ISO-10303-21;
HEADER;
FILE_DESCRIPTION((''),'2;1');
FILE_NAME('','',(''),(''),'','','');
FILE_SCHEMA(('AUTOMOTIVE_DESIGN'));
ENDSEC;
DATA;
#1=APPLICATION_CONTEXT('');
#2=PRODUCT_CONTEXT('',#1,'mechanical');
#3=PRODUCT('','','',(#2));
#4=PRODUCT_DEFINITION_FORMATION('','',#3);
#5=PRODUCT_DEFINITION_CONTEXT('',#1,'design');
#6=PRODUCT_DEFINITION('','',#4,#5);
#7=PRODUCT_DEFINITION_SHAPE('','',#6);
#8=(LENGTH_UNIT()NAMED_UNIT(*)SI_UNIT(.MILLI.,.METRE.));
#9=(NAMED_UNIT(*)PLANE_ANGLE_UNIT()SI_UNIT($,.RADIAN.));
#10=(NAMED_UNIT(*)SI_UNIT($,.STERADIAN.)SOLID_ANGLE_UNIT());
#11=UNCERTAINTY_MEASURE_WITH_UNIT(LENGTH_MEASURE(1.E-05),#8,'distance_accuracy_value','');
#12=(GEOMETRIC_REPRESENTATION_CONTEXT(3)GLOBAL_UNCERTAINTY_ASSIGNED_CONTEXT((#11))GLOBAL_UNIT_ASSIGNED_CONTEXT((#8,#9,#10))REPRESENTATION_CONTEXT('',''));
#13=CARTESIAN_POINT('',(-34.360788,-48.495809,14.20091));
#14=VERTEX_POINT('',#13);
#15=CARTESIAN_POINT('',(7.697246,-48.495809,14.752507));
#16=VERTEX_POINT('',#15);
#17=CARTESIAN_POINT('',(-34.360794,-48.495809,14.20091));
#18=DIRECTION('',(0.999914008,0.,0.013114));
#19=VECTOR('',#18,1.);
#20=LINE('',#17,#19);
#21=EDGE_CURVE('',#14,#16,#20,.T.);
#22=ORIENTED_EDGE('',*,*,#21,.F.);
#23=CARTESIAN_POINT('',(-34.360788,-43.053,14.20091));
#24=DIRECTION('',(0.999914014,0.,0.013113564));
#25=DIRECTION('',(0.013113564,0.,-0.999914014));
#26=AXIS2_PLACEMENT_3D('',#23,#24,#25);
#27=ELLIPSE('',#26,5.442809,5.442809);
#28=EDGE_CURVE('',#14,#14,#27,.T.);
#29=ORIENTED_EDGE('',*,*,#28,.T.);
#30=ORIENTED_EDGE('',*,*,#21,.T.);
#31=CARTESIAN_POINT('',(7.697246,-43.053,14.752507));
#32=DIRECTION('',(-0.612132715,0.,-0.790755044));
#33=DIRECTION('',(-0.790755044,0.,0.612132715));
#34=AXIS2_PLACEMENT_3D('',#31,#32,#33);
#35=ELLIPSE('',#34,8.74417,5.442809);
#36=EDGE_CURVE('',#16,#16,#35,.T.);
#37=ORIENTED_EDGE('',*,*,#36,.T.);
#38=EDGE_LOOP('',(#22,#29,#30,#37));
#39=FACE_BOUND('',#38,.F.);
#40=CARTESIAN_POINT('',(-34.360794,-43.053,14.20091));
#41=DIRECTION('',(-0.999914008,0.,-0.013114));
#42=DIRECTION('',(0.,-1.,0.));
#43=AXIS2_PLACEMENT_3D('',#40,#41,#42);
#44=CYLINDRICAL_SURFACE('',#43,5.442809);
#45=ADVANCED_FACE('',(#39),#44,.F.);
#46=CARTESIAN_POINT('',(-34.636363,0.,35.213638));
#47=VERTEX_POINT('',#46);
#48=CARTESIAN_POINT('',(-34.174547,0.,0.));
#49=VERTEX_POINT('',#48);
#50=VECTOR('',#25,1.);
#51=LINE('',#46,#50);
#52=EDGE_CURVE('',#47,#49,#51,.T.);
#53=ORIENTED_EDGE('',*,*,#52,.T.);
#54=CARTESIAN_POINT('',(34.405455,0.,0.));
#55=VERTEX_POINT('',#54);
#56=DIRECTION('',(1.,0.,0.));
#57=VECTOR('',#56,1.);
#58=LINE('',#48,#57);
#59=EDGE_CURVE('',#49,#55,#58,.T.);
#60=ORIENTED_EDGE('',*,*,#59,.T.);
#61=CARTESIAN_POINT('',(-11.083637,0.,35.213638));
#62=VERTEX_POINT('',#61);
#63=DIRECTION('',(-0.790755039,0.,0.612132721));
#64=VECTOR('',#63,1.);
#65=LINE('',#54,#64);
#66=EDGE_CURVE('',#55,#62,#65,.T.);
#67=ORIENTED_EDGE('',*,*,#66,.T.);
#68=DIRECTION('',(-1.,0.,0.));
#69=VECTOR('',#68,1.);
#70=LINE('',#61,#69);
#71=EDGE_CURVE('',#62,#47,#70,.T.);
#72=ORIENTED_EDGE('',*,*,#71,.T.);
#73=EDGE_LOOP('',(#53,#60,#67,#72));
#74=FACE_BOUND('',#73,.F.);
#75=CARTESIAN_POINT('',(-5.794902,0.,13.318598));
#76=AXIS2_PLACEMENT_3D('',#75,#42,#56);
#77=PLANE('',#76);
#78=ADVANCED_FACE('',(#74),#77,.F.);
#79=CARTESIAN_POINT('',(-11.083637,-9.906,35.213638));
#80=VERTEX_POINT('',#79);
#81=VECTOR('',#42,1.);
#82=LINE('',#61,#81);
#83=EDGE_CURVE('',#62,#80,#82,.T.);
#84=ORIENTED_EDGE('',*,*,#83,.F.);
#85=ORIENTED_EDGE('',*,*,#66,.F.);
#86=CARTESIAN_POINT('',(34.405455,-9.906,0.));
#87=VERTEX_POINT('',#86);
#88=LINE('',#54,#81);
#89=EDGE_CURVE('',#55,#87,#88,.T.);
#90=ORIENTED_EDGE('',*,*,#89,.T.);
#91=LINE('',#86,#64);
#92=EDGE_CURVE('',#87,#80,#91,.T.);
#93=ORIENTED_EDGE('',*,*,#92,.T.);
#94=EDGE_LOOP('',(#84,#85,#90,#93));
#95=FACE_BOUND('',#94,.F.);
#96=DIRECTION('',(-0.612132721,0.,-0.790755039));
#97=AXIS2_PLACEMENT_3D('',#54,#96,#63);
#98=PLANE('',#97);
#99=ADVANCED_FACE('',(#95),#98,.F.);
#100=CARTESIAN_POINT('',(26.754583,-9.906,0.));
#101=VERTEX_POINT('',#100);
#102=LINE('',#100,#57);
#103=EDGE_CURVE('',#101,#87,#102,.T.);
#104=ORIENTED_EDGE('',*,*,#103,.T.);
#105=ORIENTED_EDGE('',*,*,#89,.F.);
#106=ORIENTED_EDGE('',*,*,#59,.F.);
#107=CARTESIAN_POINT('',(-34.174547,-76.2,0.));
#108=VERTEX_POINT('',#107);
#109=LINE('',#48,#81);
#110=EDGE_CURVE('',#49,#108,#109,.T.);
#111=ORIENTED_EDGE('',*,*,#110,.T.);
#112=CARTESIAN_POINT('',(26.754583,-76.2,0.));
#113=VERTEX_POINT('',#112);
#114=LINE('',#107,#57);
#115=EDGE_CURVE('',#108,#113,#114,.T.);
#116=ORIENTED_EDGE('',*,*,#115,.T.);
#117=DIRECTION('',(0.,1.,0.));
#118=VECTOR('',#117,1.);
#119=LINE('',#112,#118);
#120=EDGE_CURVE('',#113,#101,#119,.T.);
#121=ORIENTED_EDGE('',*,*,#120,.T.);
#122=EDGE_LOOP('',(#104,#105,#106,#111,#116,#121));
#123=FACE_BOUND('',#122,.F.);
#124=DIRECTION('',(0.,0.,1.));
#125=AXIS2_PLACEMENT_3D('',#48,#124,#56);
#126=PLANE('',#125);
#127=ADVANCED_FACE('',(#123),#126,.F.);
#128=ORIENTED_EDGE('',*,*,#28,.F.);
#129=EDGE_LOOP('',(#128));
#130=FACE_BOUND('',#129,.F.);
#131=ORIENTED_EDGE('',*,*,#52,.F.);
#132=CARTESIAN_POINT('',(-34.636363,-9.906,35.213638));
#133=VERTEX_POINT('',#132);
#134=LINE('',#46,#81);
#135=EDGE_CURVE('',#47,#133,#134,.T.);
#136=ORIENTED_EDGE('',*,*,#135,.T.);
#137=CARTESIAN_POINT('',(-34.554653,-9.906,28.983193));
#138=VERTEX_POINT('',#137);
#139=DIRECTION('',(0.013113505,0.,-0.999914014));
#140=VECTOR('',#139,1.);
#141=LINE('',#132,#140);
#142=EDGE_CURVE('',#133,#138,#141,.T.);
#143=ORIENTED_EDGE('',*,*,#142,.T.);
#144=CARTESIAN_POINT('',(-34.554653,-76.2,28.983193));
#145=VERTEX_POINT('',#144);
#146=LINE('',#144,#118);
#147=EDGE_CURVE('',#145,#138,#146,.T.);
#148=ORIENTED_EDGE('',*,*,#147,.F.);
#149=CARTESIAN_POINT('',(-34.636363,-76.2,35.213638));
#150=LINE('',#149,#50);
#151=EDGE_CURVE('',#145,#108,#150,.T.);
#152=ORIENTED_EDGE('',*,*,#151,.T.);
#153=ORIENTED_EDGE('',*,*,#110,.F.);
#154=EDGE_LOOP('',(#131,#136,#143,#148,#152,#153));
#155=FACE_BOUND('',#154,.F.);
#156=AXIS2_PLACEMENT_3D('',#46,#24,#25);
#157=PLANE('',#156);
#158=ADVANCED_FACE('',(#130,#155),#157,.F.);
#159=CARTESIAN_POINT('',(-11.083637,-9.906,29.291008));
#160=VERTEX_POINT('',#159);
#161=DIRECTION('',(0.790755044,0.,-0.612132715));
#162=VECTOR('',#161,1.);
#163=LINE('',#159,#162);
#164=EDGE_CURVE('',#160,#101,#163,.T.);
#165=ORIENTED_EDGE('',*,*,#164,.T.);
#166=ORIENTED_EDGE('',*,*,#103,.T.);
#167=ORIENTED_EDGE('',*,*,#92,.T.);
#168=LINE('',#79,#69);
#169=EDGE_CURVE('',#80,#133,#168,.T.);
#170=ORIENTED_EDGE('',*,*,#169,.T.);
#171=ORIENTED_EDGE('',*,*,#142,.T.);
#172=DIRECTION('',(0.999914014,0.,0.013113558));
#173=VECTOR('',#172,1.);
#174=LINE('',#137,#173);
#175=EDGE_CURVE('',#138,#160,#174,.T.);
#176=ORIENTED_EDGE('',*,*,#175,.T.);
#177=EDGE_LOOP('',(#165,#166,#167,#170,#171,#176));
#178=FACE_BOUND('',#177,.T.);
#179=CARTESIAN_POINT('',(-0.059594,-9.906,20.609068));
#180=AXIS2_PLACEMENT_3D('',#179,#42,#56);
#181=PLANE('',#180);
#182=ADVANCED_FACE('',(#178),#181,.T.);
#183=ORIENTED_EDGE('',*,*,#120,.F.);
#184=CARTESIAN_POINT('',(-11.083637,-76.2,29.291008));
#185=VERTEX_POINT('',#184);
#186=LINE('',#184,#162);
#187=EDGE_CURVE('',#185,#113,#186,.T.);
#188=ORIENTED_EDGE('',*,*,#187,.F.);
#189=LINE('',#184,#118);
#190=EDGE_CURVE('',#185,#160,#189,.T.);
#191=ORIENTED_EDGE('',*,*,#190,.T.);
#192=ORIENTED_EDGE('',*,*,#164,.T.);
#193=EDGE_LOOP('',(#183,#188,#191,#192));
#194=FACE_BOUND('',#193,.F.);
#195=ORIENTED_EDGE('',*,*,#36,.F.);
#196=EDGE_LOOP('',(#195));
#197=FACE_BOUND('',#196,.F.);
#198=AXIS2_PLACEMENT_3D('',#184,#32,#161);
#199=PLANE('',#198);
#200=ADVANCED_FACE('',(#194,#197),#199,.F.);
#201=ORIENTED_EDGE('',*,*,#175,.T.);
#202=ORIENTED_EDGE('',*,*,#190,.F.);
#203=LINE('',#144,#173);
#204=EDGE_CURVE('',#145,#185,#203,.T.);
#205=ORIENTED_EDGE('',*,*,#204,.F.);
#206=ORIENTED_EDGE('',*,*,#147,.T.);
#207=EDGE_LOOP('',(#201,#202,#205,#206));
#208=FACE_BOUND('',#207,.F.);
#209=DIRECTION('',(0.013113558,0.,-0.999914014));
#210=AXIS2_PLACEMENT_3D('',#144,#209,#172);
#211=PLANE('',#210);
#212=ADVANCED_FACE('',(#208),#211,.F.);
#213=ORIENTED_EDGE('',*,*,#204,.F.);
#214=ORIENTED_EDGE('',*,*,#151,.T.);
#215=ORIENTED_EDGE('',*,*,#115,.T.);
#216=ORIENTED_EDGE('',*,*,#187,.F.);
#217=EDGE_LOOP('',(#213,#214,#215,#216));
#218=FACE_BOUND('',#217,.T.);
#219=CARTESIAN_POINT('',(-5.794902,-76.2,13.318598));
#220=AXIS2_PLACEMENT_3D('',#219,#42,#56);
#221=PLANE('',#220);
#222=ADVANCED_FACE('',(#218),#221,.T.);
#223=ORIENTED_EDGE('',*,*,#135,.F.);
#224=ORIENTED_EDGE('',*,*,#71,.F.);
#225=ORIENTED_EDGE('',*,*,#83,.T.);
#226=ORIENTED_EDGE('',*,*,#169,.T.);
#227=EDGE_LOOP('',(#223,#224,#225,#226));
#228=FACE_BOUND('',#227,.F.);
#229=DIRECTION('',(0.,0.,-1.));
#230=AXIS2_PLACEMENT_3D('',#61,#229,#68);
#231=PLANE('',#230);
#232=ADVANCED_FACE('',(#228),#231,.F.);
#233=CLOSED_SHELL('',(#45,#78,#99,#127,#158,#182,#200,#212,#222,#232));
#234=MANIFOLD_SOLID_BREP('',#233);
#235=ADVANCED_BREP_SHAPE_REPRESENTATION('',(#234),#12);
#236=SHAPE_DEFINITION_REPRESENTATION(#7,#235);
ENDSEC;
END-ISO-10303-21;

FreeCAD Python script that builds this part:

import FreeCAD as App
import Part
import Sketcher
Q = App.Units.Quantity


def add_polygon(sketch, points):
    """Adds a closed chain of lines whose ends are joined by coincident constraints."""
    first, n = sketch.GeometryCount, len(points)
    for a, b in zip(points, points[1:] + points[:1]):
        sketch.addGeometry(Part.LineSegment(App.Vector(*a, 0), App.Vector(*b, 0)), False)
    for i in range(n):
        sketch.addConstraint(Sketcher.Constraint("Coincident", first + i, 2, first + (i + 1) % n, 1))

doc = App.newDocument("Part")
body = doc.addObject("PartDesign::Body", "Body")

sketch1 = body.newObject("Sketcher::SketchObject", "Sketch")
sketch1.AttachmentSupport = (doc.getObject("XZ_Plane"), [""])
sketch1.MapMode = "FlatFace"
add_polygon(sketch1, [(-35, 35), (-34, 0), (34, 0), (-11, 35)])
sketch1.addConstraint([
    Sketcher.Constraint("Horizontal", 1),
    Sketcher.Constraint("Horizontal", 3),
    Sketcher.Constraint("PointOnObject", 0, 2, -1),
    Sketcher.Constraint("DistanceX", 1, 1, 1, 2, Q("2.7000001 in")),
    Sketcher.Constraint("Distance", 2, 57.526149),
    Sketcher.Constraint("DistanceX", 3, 2, 3, 1, 23.552726),
    Sketcher.Constraint("DistanceY", -1, 1, 2, 2, 35.213638),
    Sketcher.Constraint("DistanceX", 0, 2, -1, 1, 34.174547),
])
pad1 = body.newObject("PartDesign::Pad", "Pad")
pad1.Profile = sketch1
pad1.Length = Q("3 in")

sketch2 = body.newObject("Sketcher::SketchObject", "Sketch001")
sketch2.AttachmentSupport = (doc.getObject("XZ_Plane"), [""])
sketch2.MapMode = "FlatFace"
sketch2.AttachmentOffset = App.Placement(App.Vector(0, 0, 3 * 25.4), App.Rotation())
add_polygon(sketch2, [(-11, 29), (27, 0), (34, 0), (-11, 35), (-35, 35), (-35, 29)])
sketch2.addConstraint([
    Sketcher.Constraint("Horizontal", 1),
    Sketcher.Constraint("Horizontal", 3),
    Sketcher.Constraint("PointOnObject", 0, 2, -1),
    Sketcher.Constraint("Parallel", 0, 2),
    Sketcher.Constraint("Perpendicular", 4, 5),
    Sketcher.Constraint("Vertical", 2, 2, 5, 2),
    Sketcher.Constraint("Distance", 2, 57.526149),
    Sketcher.Constraint("Distance", 4, 6.230981),
    Sketcher.Constraint("DistanceX", 1, 1, 1, 2, 7.650872),
    Sketcher.Constraint("DistanceX", 3, 2, 3, 1, 23.552726),
    Sketcher.Constraint("DistanceY", -1, 1, 2, 2, 35.213638),
    Sketcher.Constraint("DistanceX", -1, 1, 0, 2, 26.754583),
])
pocket1 = body.newObject("PartDesign::Pocket", "Pocket")
pocket1.Profile = sketch2
pocket1.Length = Q("2.61 in")

sketch3 = body.newObject("Sketcher::SketchObject", "Sketch002")
sketch3.Placement = App.Placement(App.Vector(-34.16867, 0, -0.448112), App.Rotation(App.Vector(0, -1, 0), App.Vector(-0.013114, 0, 0.999914008), App.Vector(-0.999914008, 0, -0.013114), "ZXY"))
sketch3.addGeometry(Part.Circle(App.Vector(43, 15, 0), App.Vector(0, 0, 1), 5), False)
sketch3.addConstraint([
    Sketcher.Constraint("DistanceX", -1, 1, 0, 3, Q("1.695 in")),
    Sketcher.Constraint("Diameter", 0, 10.885618),
    Sketcher.Constraint("DistanceY", -1, 1, 0, 3, 14.650282),
])
pocket2 = body.newObject("PartDesign::Pocket", "Pocket001")
pocket2.Profile = sketch3
pocket2.Length = Q("3.46 in")

doc.recompute()
